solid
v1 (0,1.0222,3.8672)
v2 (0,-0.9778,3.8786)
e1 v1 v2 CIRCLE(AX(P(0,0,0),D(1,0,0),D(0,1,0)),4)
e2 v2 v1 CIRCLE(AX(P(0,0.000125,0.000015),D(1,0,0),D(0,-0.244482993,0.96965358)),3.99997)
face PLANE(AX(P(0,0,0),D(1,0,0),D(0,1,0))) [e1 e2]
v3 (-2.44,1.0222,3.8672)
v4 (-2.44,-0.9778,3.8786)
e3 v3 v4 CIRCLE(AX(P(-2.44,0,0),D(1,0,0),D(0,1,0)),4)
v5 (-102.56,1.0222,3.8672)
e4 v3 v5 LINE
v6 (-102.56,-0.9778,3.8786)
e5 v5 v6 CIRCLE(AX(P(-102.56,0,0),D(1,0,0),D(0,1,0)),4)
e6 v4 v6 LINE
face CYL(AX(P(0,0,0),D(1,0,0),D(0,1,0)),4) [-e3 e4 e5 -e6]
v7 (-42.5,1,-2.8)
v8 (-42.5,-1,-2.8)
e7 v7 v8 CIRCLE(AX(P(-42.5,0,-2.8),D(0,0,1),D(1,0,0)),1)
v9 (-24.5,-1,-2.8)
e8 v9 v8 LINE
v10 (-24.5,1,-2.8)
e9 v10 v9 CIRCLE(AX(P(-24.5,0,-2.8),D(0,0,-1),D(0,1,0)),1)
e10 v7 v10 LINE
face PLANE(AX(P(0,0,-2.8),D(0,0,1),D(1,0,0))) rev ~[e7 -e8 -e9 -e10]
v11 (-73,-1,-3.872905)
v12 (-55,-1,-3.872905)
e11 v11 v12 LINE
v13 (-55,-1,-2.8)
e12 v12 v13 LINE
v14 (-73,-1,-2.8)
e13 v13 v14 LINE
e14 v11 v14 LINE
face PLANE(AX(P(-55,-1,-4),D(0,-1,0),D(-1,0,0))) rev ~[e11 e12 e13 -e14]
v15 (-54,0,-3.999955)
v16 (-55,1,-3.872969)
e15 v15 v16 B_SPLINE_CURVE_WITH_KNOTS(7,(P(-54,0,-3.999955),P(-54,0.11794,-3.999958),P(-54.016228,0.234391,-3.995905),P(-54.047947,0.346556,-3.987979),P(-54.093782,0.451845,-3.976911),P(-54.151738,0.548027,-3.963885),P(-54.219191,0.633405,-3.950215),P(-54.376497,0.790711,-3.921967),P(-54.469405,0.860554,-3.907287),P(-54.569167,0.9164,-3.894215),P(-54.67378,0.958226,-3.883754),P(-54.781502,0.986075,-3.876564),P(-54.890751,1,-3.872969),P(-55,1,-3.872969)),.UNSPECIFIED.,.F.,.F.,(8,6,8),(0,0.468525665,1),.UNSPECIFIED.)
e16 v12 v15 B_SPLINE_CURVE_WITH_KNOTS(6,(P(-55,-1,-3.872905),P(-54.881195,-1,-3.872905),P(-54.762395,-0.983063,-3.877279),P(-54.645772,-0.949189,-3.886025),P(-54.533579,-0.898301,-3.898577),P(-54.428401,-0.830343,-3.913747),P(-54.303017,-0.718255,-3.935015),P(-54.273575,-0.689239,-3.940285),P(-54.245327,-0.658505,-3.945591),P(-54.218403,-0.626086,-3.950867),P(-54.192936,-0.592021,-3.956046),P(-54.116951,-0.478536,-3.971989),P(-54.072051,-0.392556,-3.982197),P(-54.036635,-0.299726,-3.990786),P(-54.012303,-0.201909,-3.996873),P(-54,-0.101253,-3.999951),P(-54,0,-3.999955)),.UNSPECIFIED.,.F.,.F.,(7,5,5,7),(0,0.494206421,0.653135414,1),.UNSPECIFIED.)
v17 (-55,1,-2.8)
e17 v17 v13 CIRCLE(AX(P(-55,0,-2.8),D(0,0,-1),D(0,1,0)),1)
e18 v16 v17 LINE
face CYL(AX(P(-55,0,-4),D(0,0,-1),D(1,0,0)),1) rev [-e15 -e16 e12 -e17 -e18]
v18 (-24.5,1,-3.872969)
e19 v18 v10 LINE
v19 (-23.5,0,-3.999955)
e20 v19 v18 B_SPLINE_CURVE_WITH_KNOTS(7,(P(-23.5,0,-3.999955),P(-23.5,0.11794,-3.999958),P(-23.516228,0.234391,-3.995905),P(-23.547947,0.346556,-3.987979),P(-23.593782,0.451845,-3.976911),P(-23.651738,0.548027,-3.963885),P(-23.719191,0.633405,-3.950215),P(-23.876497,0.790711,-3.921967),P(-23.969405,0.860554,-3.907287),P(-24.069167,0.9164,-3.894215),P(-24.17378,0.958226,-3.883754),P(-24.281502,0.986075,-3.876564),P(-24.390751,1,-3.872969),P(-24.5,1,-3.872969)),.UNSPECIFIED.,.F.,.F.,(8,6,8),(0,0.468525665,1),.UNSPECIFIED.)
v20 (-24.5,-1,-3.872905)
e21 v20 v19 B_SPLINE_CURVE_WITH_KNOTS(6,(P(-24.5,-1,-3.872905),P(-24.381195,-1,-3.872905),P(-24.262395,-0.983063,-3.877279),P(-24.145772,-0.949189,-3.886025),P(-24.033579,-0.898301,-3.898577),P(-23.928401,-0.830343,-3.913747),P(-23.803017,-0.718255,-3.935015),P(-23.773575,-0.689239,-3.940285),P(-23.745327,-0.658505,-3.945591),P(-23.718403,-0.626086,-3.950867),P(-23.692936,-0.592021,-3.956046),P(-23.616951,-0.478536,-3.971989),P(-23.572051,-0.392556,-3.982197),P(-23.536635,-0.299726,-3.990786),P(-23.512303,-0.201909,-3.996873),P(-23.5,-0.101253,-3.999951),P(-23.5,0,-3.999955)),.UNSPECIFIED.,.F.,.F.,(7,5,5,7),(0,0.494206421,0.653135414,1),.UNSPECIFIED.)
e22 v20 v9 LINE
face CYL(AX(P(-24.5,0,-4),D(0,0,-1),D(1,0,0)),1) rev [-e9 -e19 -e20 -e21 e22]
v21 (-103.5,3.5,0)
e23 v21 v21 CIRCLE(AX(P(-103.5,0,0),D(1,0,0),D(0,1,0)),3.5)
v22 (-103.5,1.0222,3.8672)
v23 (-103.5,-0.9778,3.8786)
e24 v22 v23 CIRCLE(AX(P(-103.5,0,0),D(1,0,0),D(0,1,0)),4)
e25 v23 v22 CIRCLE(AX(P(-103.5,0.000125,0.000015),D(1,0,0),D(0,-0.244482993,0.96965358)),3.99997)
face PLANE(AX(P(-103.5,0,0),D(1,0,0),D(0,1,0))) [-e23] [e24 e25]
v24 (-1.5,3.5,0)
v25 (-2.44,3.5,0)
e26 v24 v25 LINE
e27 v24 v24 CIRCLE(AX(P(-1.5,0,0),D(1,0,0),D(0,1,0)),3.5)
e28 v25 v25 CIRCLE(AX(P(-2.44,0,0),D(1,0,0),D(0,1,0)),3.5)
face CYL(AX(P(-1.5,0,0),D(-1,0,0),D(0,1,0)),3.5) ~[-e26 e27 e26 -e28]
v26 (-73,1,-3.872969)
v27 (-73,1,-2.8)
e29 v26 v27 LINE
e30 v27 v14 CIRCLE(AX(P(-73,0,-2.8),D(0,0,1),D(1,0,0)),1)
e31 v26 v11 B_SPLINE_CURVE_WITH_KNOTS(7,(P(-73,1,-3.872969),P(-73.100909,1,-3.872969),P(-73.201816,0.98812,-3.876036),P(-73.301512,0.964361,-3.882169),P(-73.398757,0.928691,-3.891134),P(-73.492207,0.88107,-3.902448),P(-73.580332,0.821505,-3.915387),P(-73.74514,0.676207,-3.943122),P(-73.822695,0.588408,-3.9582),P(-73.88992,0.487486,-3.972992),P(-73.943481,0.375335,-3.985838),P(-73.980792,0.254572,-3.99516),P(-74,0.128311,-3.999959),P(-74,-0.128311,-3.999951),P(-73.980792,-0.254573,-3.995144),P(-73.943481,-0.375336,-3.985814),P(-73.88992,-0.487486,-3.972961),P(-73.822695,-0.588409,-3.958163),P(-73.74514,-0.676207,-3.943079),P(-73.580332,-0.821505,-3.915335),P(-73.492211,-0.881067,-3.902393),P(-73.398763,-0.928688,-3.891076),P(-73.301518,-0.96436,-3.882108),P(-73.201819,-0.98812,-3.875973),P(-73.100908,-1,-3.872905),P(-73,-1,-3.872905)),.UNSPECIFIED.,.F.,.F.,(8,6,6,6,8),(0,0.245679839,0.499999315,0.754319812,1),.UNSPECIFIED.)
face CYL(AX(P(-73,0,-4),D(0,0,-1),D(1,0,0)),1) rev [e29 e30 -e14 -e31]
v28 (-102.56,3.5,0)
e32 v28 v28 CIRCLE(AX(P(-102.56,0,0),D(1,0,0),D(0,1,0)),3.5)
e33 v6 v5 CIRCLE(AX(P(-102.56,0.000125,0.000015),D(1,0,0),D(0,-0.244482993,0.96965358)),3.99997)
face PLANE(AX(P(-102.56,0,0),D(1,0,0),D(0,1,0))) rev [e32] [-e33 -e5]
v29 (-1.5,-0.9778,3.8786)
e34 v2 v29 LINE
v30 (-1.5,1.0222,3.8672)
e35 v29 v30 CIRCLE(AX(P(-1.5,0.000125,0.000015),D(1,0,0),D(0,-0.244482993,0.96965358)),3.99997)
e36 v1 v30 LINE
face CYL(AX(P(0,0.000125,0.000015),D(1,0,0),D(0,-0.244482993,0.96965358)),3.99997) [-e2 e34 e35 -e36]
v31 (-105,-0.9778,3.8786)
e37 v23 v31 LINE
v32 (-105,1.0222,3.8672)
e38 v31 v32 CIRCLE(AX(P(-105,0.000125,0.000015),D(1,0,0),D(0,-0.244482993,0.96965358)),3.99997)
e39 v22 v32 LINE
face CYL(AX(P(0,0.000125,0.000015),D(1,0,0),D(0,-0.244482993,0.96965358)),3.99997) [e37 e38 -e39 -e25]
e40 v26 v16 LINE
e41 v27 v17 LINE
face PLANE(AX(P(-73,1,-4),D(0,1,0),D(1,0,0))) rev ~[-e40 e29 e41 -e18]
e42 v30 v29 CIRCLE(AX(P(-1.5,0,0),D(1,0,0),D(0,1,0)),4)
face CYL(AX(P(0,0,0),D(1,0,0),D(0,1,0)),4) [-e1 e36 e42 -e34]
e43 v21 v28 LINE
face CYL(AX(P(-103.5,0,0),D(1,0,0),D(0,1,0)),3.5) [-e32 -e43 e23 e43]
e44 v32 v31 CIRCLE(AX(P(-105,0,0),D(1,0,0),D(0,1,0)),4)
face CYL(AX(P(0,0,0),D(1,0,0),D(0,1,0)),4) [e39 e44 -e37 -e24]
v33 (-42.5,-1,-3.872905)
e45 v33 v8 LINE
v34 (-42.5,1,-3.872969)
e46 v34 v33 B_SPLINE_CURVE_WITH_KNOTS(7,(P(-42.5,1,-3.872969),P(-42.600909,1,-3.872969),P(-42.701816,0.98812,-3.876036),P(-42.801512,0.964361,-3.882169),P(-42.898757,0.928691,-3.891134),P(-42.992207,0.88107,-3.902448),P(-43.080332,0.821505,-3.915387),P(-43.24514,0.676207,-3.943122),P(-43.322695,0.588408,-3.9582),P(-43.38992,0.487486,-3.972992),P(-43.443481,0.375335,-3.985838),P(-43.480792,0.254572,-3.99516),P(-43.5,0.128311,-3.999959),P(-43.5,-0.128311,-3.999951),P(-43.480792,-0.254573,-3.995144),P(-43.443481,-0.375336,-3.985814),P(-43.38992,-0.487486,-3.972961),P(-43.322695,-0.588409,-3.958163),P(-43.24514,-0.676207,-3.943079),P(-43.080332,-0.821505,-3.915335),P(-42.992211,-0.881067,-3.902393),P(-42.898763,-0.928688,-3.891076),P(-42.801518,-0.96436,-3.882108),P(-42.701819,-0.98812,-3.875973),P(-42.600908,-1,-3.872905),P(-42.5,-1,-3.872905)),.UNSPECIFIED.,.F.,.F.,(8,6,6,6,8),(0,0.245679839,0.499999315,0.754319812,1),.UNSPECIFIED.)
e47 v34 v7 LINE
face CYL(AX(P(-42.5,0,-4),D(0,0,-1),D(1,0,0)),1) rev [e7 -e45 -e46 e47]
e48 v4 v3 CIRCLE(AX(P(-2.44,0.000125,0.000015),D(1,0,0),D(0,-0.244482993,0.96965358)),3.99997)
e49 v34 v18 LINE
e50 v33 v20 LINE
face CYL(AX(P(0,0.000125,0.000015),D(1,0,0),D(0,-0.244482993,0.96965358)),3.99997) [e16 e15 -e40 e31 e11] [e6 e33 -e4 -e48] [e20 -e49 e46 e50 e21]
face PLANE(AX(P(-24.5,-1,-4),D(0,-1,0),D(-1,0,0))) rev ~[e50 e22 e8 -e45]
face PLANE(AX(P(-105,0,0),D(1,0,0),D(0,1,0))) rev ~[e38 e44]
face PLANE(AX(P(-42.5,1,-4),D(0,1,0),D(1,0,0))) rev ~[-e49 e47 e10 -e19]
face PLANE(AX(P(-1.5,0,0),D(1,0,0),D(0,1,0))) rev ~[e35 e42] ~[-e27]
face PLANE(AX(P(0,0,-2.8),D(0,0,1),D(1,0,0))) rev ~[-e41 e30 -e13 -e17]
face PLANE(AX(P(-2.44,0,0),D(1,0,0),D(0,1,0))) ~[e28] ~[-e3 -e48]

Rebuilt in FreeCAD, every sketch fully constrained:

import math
import FreeCAD as App
import Part
import Sketcher

V = App.Vector


def add_polygon(sketch, points):
    """Adds a closed chain of lines whose ends are joined by coincident constraints."""
    first, n = sketch.GeometryCount, len(points)
    for a, b in zip(points, points[1:] + points[:1]):
        sketch.addGeometry(Part.LineSegment(App.Vector(*a, 0), App.Vector(*b, 0)), False)
    for i in range(n):
        sketch.addConstraint(Sketcher.Constraint("Coincident", first + i, 2, first + (i + 1) % n, 1))

doc = App.newDocument("Part")
body = doc.addObject("PartDesign::Body", "Body")

sketch1 = body.newObject("Sketcher::SketchObject", "Sketch")
sketch1.AttachmentSupport = (doc.getObject("YZ_Plane"), [""])
sketch1.MapMode = "FlatFace"
sketch1.addGeometry(Part.ArcOfCircle(Part.Circle(V(0, 0, 0), V(0, 0, 1), 4), math.radians(75.193883), math.radians(104.149499)), False)
sketch1.addGeometry(Part.ArcOfCircle(Part.Circle(V(0, 0, 0), V(0, 0, 1), 3.999954), math.radians(104.149499), math.radians(435.193883)), False)
sketch1.addConstraint(Sketcher.Constraint("Tangent", 0, 1, 1, 2))
sketch1.addConstraint(Sketcher.Constraint("Coincident", 1, 1, 0, 2))
sketch1.addConstraint(Sketcher.Constraint("Coincident", 0, 3, -1, 1))
sketch1.addConstraint(Sketcher.Constraint("Radius", 0, 4.0))
sketch1.addConstraint(Sketcher.Constraint("DistanceX", 1, 1, 0, 1, 2.0))
sketch1.addConstraint(Sketcher.Constraint("DistanceX", -1, 1, 0, 1, 1.0222))
pad1 = body.newObject("PartDesign::Pad", "Pad")
pad1.Profile = sketch1
pad1.Length = 105
pad1.Reversed = True

sketch2 = body.newObject("Sketcher::SketchObject", "Sketch001")
sketch2.AttachmentSupport = (doc.getObject("XY_Plane"), [""])
sketch2.MapMode = "FlatFace"
add_polygon(sketch2, [(-1.5, 6.5), (-2.44, 6.5), (-2.44, 3.5), (-1.5, 3.5)])
add_polygon(sketch2, [(-102.56, 3.5), (-102.56, 6.5), (-103.5, 6.5), (-103.5, 3.5)])
sketch2.addConstraint(Sketcher.Constraint("Horizontal", 0))
sketch2.addConstraint(Sketcher.Constraint("Vertical", 1))
sketch2.addConstraint(Sketcher.Constraint("Horizontal", 2))
sketch2.addConstraint(Sketcher.Constraint("Vertical", 3))
sketch2.addConstraint(Sketcher.Constraint("Vertical", 4))
sketch2.addConstraint(Sketcher.Constraint("Horizontal", 5))
sketch2.addConstraint(Sketcher.Constraint("Vertical", 6))
sketch2.addConstraint(Sketcher.Constraint("Horizontal", 7))
sketch2.addConstraint(Sketcher.Constraint("Horizontal", 3, 2, 4, 2))
sketch2.addConstraint(Sketcher.Constraint("Horizontal", 2, 2, 6, 2))
sketch2.addConstraint(Sketcher.Constraint("Equal", 2, 5))
sketch2.addConstraint(Sketcher.Constraint("DistanceY", 1, 2, 1, 1, 3.0))
sketch2.addConstraint(Sketcher.Constraint("DistanceX", 0, 2, 0, 1, 0.94))
sketch2.addConstraint(Sketcher.Constraint("DistanceX", 2, 2, -1, 1, 1.5))
sketch2.addConstraint(Sketcher.Constraint("DistanceX", 5, 2, 3, 2, 102.0))
sketch2.addConstraint(Sketcher.Constraint("DistanceY", -1, 1, 0, 2, 6.5))
groove = body.newObject("PartDesign::Groove", "Groove")
groove.Profile = sketch2
groove.ReferenceAxis = (sketch2, ["H_Axis"])
groove.Angle = 360

sketch3 = body.newObject("Sketcher::SketchObject", "Sketch002")
sketch3.AttachmentSupport = (doc.getObject("XY_Plane"), [""])
sketch3.MapMode = "FlatFace"
sketch3.AttachmentOffset = App.Placement(V(0, 0, -4), App.Rotation())
sketch3.addGeometry(Part.LineSegment(V(-55, 1, 0), V(-73, 1, 0)), False)
sketch3.addGeometry(Part.ArcOfCircle(Part.Circle(V(-73, 0, 0), V(0, 0, 1), 1), math.radians(90), math.radians(270)), False)
sketch3.addGeometry(Part.LineSegment(V(-73, -1, 0), V(-55, -1, 0)), False)
sketch3.addGeometry(Part.ArcOfCircle(Part.Circle(V(-55, 0, 0), V(0, 0, 1), 1), math.radians(-90), math.radians(90)), False)
sketch3.addGeometry(Part.LineSegment(V(-24.5, 1, 0), V(-42.5, 1, 0)), False)
sketch3.addGeometry(Part.ArcOfCircle(Part.Circle(V(-42.5, 0, 0), V(0, 0, 1), 1), math.radians(90), math.radians(270)), False)
sketch3.addGeometry(Part.LineSegment(V(-42.5, -1, 0), V(-24.5, -1, 0)), False)
sketch3.addGeometry(Part.ArcOfCircle(Part.Circle(V(-24.5, 0, 0), V(0, 0, 1), 1), math.radians(-90), math.radians(90)), False)
sketch3.addConstraint(Sketcher.Constraint("Tangent", 0, 2, 1, 1))
sketch3.addConstraint(Sketcher.Constraint("Tangent", 1, 2, 2, 1))
sketch3.addConstraint(Sketcher.Constraint("Tangent", 2, 2, 3, 1))
sketch3.addConstraint(Sketcher.Constraint("Tangent", 3, 2, 0, 1))
sketch3.addConstraint(Sketcher.Constraint("Tangent", 4, 2, 5, 1))
sketch3.addConstraint(Sketcher.Constraint("Tangent", 5, 2, 6, 1))
sketch3.addConstraint(Sketcher.Constraint("Tangent", 6, 2, 7, 1))
sketch3.addConstraint(Sketcher.Constraint("Tangent", 7, 2, 4, 1))
sketch3.addConstraint(Sketcher.Constraint("Horizontal", 0))
sketch3.addConstraint(Sketcher.Constraint("Horizontal", 2))
sketch3.addConstraint(Sketcher.Constraint("Horizontal", 4))
sketch3.addConstraint(Sketcher.Constraint("Horizontal", 6))
sketch3.addConstraint(Sketcher.Constraint("Equal", 3, 5))
sketch3.addConstraint(Sketcher.Constraint("PointOnObject", 1, 3, -1))
sketch3.addConstraint(Sketcher.Constraint("PointOnObject", 5, 3, -1))
sketch3.addConstraint(Sketcher.Constraint("Equal", 2, 4))
sketch3.addConstraint(Sketcher.Constraint("Radius", 1, 1.0))
sketch3.addConstraint(Sketcher.Constraint("DistanceX", 0, 2, 0, 1, 18.0))
sketch3.addConstraint(Sketcher.Constraint("DistanceX", 7, 3, -1, 1, 24.5))
sketch3.addConstraint(Sketcher.Constraint("DistanceX", 1, 3, -1, 1, 73.0))
pocket1 = body.newObject("PartDesign::Pocket", "Pocket")
pocket1.Profile = sketch3
pocket1.Length = 1.2
pocket1.Reversed = True

doc.recompute()
